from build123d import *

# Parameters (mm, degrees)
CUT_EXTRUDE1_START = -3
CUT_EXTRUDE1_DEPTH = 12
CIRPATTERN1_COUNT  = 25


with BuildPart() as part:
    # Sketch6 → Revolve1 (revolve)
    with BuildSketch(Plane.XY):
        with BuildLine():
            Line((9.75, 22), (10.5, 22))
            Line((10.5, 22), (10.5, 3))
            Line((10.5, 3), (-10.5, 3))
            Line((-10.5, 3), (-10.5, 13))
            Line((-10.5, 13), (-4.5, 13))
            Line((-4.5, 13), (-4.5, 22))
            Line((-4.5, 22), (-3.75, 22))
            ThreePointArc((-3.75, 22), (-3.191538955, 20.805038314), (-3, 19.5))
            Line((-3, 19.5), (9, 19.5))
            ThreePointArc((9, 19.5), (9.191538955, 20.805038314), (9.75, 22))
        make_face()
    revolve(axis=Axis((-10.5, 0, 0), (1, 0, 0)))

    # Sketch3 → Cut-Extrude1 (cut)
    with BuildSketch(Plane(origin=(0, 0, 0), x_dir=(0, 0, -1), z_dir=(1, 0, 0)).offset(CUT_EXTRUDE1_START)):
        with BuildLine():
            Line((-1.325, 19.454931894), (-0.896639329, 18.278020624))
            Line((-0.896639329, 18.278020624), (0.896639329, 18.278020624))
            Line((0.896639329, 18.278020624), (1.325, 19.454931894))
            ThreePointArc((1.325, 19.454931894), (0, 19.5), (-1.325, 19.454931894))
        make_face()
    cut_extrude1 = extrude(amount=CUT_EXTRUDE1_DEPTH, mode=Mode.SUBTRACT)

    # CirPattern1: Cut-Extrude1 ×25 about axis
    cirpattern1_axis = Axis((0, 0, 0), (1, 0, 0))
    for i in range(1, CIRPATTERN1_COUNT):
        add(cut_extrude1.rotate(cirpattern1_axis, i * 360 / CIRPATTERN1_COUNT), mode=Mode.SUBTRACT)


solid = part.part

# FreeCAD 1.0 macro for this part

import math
import FreeCAD as App
import Part
import Sketcher
from FreeCAD import Vector
Q = App.Units.Quantity

doc = App.newDocument("Part")
params = doc.addObject("Spreadsheet::Sheet", "Params")
for row, (alias, value) in enumerate([
    ("sketch1_width", "12 mm"),
    ("sketch1_width2", "6 mm"),
    ("sketch1_width3", "21 mm"),
    ("sketch1_height", "9 mm"),
    ("sketch1_height2", "10 mm"),
    ("revolution_angle", "360 deg"),
    ("sketch2_radius", "19.5 mm"),
    ("pocket1_length", "12 mm"),
], start=1):
    params.set(f"A{row}", alias)
    params.set(f"B{row}", "=" + value)
    params.setAlias(f"B{row}", alias)

body = doc.addObject("PartDesign::Body", "Body")

# Sketch on XY plane
sketch1 = doc.addObject("Sketcher::SketchObject", "Sketch")
body.addObject(sketch1)
sketch1.AttachmentSupport = (doc.XY_Plane, [""])
sketch1.MapMode = "FlatFace"
sketch1.addGeometry([
    Part.LineSegment(Vector(10.5, 22, 0), Vector(9.8, 22, 0)),  # 0
    Part.ArcOfCircle(Part.Circle(Vector(13.5, 19.5, 0), Vector(0, 0, 1), 4.5), math.radians(147), math.radians(180)),  # 1
    Part.LineSegment(Vector(9, 19.5, 0), Vector(-3, 19.5, 0)),  # 2
    Part.ArcOfCircle(Part.Circle(Vector(-7.5, 19.5, 0), Vector(0, 0, 1), 4.5), math.radians(0), math.radians(33)),  # 3
    Part.LineSegment(Vector(-3.8, 22, 0), Vector(-4.5, 22, 0)),  # 4
    Part.LineSegment(Vector(-4.5, 22, 0), Vector(-4.5, 13, 0)),  # 5
    Part.LineSegment(Vector(-4.5, 13, 0), Vector(-10.5, 13, 0)),  # 6
    Part.LineSegment(Vector(-10.5, 13, 0), Vector(-10.5, 3, 0)),  # 7
    Part.LineSegment(Vector(-10.5, 3, 0), Vector(10.5, 3, 0)),  # 8
    Part.LineSegment(Vector(10.5, 3, 0), Vector(10.5, 22, 0)),  # 9
], False)
sketch1.addConstraint([
    Sketcher.Constraint("Coincident", 0, 2, 1, 1),
    Sketcher.Constraint("Coincident", 1, 2, 2, 1),
    Sketcher.Constraint("Coincident", 2, 2, 3, 1),
    Sketcher.Constraint("Coincident", 3, 2, 4, 1),
    Sketcher.Constraint("Coincident", 4, 2, 5, 1),
    Sketcher.Constraint("Coincident", 5, 2, 6, 1),
    Sketcher.Constraint("Coincident", 6, 2, 7, 1),
    Sketcher.Constraint("Coincident", 7, 2, 8, 1),
    Sketcher.Constraint("Coincident", 8, 2, 9, 1),
    Sketcher.Constraint("Coincident", 9, 2, 0, 1),
    Sketcher.Constraint("Horizontal", 0),
    Sketcher.Constraint("Horizontal", 2),
    Sketcher.Constraint("Horizontal", 4),
    Sketcher.Constraint("Vertical", 5),
    Sketcher.Constraint("Horizontal", 6),
    Sketcher.Constraint("Vertical", 7),
    Sketcher.Constraint("Horizontal", 8),
    Sketcher.Constraint("Vertical", 9),
    Sketcher.Constraint("Equal", 1, 3),
    Sketcher.Constraint("Horizontal", 1, 3, 3, 3),
    Sketcher.Constraint("Horizontal", 3, 3, 1, 2),
    Sketcher.Constraint("Horizontal", 0, 2, 3, 2),
    Sketcher.Constraint("Equal", 0, 4),
    Sketcher.Constraint("DistanceX", 2, 2, 2, 1, Q("12 mm")),
    Sketcher.Constraint("DistanceX", 6, 2, 6, 1, Q("6 mm")),
    Sketcher.Constraint("DistanceX", 8, 1, 8, 2, Q("21 mm")),
    Sketcher.Constraint("DistanceY", 5, 2, 5, 1, Q("9 mm")),
    Sketcher.Constraint("DistanceY", 7, 2, 7, 1, Q("10 mm")),
    Sketcher.Constraint("DistanceY", -1, 1, 0, 2, Q("22 mm")),
    Sketcher.Constraint("DistanceX", -1, 1, 1, 2, Q("9 mm")),
    Sketcher.Constraint("DistanceX", 0, 2, 0, 1, Q("0.75 mm")),
    Sketcher.Constraint("DistanceY", -1, 1, 1, 3, Q("19.5 mm")),
])
sketch1.setExpression("Constraints[23]", "Params.sketch1_width")
sketch1.setExpression("Constraints[24]", "Params.sketch1_width2")
sketch1.setExpression("Constraints[25]", "Params.sketch1_width3")
sketch1.setExpression("Constraints[26]", "Params.sketch1_height")
sketch1.setExpression("Constraints[27]", "Params.sketch1_height2")
revolution = doc.addObject("PartDesign::Revolution", "Revolution")
body.addObject(revolution)
revolution.Profile = sketch1
revolution.ReferenceAxis = (sketch1, ["H_Axis"])
revolution.setExpression("Angle", "Params.revolution_angle")

# Sketch on YZ plane
sketch2 = doc.addObject("Sketcher::SketchObject", "Sketch001")
body.addObject(sketch2)
sketch2.AttachmentSupport = (doc.YZ_Plane, [""])
sketch2.MapMode = "FlatFace"
sketch2.AttachmentOffset = App.Placement(Vector(0, 0, -3), App.Rotation())
sketch2.addGeometry([
    Part.LineSegment(Vector(19.5, 1.3, 0), Vector(18.3, 0.9, 0)),
    Part.LineSegment(Vector(18.3, 0.9, 0), Vector(18.3, -0.9, 0)),
    Part.LineSegment(Vector(18.3, -0.9, 0), Vector(19.5, -1.3, 0)),
    Part.ArcOfCircle(Part.Circle(Vector(0, 0, 0), Vector(0, 0, 1), 19.5), math.radians(-3.9), math.radians(3.9)),
], False)
sketch2.addConstraint([
    Sketcher.Constraint("Coincident", 0, 2, 1, 1),
    Sketcher.Constraint("Coincident", 1, 2, 2, 1),
    Sketcher.Constraint("Coincident", 2, 2, 3, 1),
    Sketcher.Constraint("Coincident", 3, 2, 0, 1),
    Sketcher.Constraint("Vertical", 1),
    Sketcher.Constraint("Coincident", 3, 3, -1, 1),
    Sketcher.Constraint("Vertical", 2, 2, 3, 2),
    Sketcher.Constraint("Equal", 0, 2),
    Sketcher.Constraint("Radius", 3, Q("19.5 mm")),
    Sketcher.Constraint("Angle", 0, Q("-160 deg")),
    Sketcher.Constraint("DistanceY", 2, 2, 3, 2, Q("2.65 mm")),
    Sketcher.Constraint("DistanceY", 1, 2, 1, 1, Q("1.793279 mm")),
])
sketch2.setExpression("Constraints[8]", "Params.sketch2_radius")
pocket1 = doc.addObject("PartDesign::Pocket", "Pocket")
body.addObject(pocket1)
pocket1.Profile = sketch2
pocket1.setExpression("Length", "Params.pocket1_length")
pocket1.Reversed = True
doc.recompute()

polarpattern = doc.addObject("PartDesign::PolarPattern", "PolarPattern")
body.addObject(polarpattern)
polarpattern.Originals = [pocket1]
polarpattern.Axis = (doc.X_Axis, [""])
polarpattern.Angle = 360
polarpattern.Occurrences = 25
body.Tip = polarpattern

doc.recompute()
